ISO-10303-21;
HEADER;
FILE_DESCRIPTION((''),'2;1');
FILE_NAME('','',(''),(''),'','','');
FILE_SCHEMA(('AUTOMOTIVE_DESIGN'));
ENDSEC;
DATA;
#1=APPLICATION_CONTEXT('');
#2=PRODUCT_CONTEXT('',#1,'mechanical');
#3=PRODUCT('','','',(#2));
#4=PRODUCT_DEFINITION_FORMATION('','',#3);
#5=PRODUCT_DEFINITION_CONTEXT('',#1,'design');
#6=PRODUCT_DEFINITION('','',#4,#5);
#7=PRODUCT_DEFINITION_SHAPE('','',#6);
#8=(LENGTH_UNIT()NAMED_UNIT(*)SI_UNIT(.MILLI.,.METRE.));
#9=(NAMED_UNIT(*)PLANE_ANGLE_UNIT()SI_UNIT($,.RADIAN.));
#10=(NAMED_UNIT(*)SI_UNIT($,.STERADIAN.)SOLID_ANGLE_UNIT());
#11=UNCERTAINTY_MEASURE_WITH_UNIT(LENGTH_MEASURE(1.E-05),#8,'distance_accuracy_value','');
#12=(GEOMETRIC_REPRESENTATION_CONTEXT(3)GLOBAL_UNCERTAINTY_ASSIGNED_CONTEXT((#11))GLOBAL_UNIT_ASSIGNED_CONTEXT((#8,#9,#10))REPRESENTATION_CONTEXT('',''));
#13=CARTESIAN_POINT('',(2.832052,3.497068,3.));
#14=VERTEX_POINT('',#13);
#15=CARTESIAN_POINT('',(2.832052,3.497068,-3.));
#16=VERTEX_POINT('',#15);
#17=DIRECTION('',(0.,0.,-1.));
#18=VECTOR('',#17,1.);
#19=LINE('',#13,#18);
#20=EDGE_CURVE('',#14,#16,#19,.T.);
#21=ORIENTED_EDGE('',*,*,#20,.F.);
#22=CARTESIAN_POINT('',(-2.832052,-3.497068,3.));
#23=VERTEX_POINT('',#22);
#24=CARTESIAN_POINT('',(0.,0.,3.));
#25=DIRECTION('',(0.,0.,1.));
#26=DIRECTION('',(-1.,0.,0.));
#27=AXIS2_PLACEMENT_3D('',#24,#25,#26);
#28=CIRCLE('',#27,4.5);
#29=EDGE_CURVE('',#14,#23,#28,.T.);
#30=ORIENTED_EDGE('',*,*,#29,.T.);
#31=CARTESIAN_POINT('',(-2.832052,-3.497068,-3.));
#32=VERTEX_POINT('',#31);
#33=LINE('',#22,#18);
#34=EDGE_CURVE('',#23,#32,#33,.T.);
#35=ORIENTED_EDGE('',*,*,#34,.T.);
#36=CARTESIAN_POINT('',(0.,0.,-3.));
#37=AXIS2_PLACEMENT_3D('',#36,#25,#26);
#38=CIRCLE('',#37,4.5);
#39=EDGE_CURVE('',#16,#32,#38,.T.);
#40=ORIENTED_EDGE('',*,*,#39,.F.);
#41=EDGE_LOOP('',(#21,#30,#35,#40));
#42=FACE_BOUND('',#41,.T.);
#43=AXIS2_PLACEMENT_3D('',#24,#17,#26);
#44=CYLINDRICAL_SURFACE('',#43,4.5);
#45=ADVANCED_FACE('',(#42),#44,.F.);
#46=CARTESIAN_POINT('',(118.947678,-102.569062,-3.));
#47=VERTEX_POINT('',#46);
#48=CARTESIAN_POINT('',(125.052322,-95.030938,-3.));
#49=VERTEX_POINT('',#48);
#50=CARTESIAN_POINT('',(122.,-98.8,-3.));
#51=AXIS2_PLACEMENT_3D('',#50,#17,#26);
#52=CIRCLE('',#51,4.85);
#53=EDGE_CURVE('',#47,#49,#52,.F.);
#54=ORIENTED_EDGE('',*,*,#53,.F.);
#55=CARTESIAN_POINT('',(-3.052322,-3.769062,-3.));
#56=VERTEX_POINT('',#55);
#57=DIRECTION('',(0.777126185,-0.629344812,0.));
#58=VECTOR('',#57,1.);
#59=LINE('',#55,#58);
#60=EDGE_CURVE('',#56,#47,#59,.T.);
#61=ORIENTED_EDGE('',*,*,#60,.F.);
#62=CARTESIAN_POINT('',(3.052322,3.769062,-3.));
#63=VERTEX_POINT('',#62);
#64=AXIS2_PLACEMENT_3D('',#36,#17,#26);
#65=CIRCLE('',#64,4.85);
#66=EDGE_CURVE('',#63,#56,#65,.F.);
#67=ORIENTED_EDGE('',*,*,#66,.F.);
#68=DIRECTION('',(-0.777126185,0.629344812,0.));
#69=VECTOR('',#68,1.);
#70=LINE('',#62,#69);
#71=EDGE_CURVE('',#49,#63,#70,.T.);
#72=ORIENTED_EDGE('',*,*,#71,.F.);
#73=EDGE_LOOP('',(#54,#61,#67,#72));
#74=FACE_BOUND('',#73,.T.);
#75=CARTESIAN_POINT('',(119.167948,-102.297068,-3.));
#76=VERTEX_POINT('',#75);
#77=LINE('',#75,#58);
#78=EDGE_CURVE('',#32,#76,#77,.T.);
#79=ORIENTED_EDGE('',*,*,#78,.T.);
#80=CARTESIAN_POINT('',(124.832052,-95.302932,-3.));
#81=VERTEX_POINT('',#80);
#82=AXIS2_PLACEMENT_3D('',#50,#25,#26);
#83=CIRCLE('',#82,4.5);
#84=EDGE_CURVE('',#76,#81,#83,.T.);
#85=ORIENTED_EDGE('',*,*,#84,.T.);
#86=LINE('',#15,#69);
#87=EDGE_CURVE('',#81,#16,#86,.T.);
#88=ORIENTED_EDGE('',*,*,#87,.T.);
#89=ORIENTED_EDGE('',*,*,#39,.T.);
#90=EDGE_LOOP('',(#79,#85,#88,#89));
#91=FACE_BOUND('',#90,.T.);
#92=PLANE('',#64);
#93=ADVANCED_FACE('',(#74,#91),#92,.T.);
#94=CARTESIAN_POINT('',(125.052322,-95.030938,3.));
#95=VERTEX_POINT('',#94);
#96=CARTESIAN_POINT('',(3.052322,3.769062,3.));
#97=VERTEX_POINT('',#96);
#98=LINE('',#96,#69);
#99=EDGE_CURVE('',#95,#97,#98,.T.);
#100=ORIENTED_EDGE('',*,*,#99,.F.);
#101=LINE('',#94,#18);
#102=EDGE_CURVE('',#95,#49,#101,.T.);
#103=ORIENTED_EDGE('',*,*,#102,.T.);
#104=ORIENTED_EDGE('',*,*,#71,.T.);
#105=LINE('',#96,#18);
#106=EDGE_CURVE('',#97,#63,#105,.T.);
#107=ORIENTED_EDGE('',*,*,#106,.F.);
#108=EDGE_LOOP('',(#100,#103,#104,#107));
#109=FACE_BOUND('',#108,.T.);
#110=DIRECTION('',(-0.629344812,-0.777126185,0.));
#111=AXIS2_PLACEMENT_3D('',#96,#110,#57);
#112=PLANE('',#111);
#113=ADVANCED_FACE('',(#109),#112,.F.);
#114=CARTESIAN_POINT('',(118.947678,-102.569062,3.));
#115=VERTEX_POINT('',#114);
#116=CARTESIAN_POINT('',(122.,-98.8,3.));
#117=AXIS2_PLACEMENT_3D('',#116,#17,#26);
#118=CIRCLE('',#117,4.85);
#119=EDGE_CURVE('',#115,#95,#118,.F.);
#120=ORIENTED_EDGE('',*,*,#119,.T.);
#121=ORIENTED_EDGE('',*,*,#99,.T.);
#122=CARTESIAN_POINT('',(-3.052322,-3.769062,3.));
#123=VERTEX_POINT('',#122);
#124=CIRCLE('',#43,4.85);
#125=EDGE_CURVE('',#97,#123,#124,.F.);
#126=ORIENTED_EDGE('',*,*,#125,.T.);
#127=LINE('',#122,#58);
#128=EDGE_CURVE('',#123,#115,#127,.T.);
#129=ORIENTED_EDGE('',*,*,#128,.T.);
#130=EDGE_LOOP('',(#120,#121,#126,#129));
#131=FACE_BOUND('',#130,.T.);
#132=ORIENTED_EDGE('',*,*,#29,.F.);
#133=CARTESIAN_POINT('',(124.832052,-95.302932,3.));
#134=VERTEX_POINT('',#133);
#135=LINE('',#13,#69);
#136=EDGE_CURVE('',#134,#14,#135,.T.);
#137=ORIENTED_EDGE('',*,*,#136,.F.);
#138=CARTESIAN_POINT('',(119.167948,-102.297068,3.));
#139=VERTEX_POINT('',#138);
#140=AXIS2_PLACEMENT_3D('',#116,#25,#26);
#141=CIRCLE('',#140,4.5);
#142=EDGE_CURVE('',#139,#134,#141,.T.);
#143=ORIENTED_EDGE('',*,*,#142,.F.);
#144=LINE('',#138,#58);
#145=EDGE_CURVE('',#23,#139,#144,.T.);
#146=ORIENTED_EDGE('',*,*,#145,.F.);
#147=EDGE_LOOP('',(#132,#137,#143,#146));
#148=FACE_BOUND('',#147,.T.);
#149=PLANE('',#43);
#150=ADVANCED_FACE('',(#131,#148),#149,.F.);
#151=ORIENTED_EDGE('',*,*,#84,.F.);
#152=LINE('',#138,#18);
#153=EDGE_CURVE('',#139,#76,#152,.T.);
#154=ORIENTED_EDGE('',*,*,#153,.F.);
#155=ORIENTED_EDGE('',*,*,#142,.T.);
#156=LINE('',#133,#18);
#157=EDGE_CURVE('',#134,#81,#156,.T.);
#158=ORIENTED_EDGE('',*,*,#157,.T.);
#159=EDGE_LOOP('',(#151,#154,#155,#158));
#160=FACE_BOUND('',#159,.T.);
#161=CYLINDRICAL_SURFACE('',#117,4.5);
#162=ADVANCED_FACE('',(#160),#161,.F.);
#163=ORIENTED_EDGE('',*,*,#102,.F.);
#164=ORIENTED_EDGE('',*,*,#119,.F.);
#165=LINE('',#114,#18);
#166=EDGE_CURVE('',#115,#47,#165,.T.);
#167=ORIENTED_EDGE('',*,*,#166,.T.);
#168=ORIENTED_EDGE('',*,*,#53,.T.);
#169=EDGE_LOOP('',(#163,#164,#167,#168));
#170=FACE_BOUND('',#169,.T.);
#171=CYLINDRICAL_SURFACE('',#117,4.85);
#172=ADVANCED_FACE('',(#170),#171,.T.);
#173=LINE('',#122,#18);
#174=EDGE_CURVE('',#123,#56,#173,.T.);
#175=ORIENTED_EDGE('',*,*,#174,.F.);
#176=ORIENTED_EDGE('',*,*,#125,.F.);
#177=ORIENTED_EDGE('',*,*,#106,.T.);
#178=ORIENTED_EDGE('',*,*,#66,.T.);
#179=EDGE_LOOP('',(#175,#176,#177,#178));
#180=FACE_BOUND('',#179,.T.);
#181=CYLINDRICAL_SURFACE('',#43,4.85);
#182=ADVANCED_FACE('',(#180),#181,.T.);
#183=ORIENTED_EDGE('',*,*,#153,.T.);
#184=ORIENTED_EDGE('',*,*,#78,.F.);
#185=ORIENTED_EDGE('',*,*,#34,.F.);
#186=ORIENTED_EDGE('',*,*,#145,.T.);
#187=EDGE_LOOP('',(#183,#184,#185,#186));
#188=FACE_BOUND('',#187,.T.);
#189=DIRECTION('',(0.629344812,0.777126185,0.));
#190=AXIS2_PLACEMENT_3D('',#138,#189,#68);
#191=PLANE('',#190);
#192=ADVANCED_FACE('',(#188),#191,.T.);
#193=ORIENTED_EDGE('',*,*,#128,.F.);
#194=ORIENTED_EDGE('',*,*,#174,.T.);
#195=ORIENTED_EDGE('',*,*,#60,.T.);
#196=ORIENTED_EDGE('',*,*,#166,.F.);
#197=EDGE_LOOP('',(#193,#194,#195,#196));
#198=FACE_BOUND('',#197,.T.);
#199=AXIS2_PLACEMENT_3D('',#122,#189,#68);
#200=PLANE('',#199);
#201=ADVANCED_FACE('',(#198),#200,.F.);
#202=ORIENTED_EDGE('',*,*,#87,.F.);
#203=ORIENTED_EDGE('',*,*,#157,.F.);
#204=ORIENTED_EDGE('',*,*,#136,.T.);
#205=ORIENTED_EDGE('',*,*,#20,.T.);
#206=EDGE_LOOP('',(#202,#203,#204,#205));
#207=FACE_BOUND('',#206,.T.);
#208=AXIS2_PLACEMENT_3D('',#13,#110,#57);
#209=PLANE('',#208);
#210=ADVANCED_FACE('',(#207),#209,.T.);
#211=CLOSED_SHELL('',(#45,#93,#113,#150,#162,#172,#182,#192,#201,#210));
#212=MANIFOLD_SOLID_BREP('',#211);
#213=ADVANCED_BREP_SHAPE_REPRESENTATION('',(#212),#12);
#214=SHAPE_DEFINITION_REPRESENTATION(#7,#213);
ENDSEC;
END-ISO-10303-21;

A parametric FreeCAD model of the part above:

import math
import FreeCAD as App
import Part
import Sketcher

V = App.Vector
Q = App.Units.Quantity

doc = App.newDocument("Part")
params = doc.addObject("Spreadsheet::Sheet", "Params")
for row, (alias, value) in enumerate([
    ("sketch1_radius", "4.5 mm"),
    ("sketch1_radius2", "4.85 mm"),
    ("pad1_length", "6 mm"),
], start=1):
    params.set(f"A{row}", alias)
    params.set(f"B{row}", "=" + value)
    params.setAlias(f"B{row}", alias)

body = doc.addObject("PartDesign::Body", "Body")

sketch1 = doc.addObject("Sketcher::SketchObject", "Sketch")
body.addObject(sketch1)
sketch1.AttachmentSupport = (doc.XY_Plane, [""])
sketch1.MapMode = "FlatFace"
sketch1.addGeometry([
    Part.LineSegment(V(-3.1, -3.8, 0), V(118.9, -102.6, 0)),
    Part.ArcOfCircle(Part.Circle(V(122, -98.8, 0), V(0, 0, 1), 4.8), math.radians(-129), math.radians(51)),
    Part.LineSegment(V(125.1, -95, 0), V(3.1, 3.8, 0)),
    Part.ArcOfCircle(Part.Circle(V(0, 0, 0), V(0, 0, 1), 4.8), math.radians(51), math.radians(231)),
    Part.LineSegment(V(119.2, -102.3, 0), V(-2.8, -3.5, 0)),
    Part.ArcOfCircle(Part.Circle(V(0, 0, 0), V(0, 0, 1), 4.5), math.radians(51), math.radians(231)),
    Part.LineSegment(V(2.8, 3.5, 0), V(124.8, -95.3, 0)),
    Part.ArcOfCircle(Part.Circle(V(122, -98.8, 0), V(0, 0, 1), 4.5), math.radians(-129), math.radians(51)),
], False)
sketch1.addConstraint([
    Sketcher.Constraint("Tangent", 0, 2, 1, 1),
    Sketcher.Constraint("Tangent", 1, 2, 2, 1),
    Sketcher.Constraint("Tangent", 2, 2, 3, 1),
    Sketcher.Constraint("Tangent", 3, 2, 0, 1),
    Sketcher.Constraint("Tangent", 4, 2, 5, 2),
    Sketcher.Constraint("Tangent", 5, 1, 6, 1),
    Sketcher.Constraint("Tangent", 6, 2, 7, 2),
    Sketcher.Constraint("Tangent", 7, 1, 4, 1),
    Sketcher.Constraint("Coincident", 3, 3, -1, 1),
    Sketcher.Constraint("Coincident", 5, 3, -1, 1),
    Sketcher.Constraint("Coincident", 7, 3, 1, 3),
    Sketcher.Constraint("Equal", 1, 3),
    Sketcher.Constraint("Equal", 5, 7),
    Sketcher.Constraint("Radius", 5, Q("4.5 mm")),
    Sketcher.Constraint("Radius", 1, Q("4.85 mm")),
    Sketcher.Constraint("DistanceX", -1, 1, 1, 3, Q("122 mm")),
    Sketcher.Constraint("DistanceY", 1, 3, -1, 1, Q("98.8 mm")),
])
sketch1.setExpression("Constraints[13]", "Params.sketch1_radius")
sketch1.setExpression("Constraints[14]", "Params.sketch1_radius2")
pad1 = doc.addObject("PartDesign::Pad", "Pad")
body.addObject(pad1)
pad1.Profile = sketch1
pad1.setExpression("Length", "Params.pad1_length")
pad1.Midplane = True

doc.recompute()
